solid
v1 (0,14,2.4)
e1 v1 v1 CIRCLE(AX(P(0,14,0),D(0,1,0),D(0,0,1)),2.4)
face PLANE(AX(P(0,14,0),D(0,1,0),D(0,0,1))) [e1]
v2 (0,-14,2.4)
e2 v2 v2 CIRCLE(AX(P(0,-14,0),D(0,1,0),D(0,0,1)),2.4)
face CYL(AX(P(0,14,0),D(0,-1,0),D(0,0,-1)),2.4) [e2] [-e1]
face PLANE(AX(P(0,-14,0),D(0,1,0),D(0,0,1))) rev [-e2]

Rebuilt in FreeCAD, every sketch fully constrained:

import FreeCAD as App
import Part
import Sketcher
from FreeCAD import Vector
Q = App.Units.Quantity

doc = App.newDocument("Part")
body = doc.addObject("PartDesign::Body", "Body")

# Sketch on XZ plane
sketch1 = doc.addObject("Sketcher::SketchObject", "Sketch")
body.addObject(sketch1)
sketch1.AttachmentSupport = (doc.XZ_Plane, [""])
sketch1.MapMode = "FlatFace"
sketch1.addGeometry(Part.Circle(Vector(0, 0, 0), Vector(0, 0, 1), 2.4), False)
sketch1.addConstraint([
    Sketcher.Constraint("Coincident", 0, 3, -1, 1),
    Sketcher.Constraint("Diameter", 0, Q("4.8 mm")),
])
pad1 = doc.addObject("PartDesign::Pad", "Pad")
body.addObject(pad1)
pad1.Profile = sketch1
pad1.Length = 28
pad1.Midplane = True

doc.recompute()
